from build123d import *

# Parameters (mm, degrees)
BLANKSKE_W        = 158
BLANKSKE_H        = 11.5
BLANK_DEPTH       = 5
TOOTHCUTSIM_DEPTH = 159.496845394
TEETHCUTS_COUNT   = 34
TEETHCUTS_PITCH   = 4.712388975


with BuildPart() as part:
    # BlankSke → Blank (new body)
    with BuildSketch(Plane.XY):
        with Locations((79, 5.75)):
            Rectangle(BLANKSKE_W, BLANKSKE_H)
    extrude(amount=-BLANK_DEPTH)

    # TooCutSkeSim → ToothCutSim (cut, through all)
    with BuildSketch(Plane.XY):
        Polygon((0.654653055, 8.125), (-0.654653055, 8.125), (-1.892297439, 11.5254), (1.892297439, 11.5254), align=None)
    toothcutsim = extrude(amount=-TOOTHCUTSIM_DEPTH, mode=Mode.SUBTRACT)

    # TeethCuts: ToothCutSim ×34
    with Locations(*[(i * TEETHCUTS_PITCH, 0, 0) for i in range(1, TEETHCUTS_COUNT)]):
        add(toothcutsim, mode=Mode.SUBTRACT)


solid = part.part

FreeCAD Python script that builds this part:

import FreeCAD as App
import Part
import Sketcher
from FreeCAD import Vector
Q = App.Units.Quantity

doc = App.newDocument("Part")
body = doc.addObject("PartDesign::Body", "Body")

# Sketch on XY plane
sketch1 = body.newObject("Sketcher::SketchObject", "Sketch")
sketch1.AttachmentSupport = (doc.getObject("XY_Plane"), [""])
sketch1.MapMode = "FlatFace"
sketch1.addGeometry(Part.LineSegment(Vector(0, 11.5, 0), Vector(0, 0, 0)), False)
sketch1.addGeometry(Part.LineSegment(Vector(0, 0, 0), Vector(158, 0, 0)), False)
sketch1.addGeometry(Part.LineSegment(Vector(158, 0, 0), Vector(158, 11.5, 0)), False)
sketch1.addGeometry(Part.LineSegment(Vector(158, 11.5, 0), Vector(0, 11.5, 0)), False)
sketch1.addConstraint(Sketcher.Constraint("Coincident", 0, 2, 1, 1))
sketch1.addConstraint(Sketcher.Constraint("Coincident", 1, 2, 2, 1))
sketch1.addConstraint(Sketcher.Constraint("Coincident", 2, 2, 3, 1))
sketch1.addConstraint(Sketcher.Constraint("Coincident", 3, 2, 0, 1))
sketch1.addConstraint(Sketcher.Constraint("Vertical", 0))
sketch1.addConstraint(Sketcher.Constraint("Horizontal", 1))
sketch1.addConstraint(Sketcher.Constraint("Vertical", 2))
sketch1.addConstraint(Sketcher.Constraint("Horizontal", 3))
sketch1.addConstraint(Sketcher.Constraint("Coincident", 0, 2, -1, 1))
sketch1.addConstraint(Sketcher.Constraint("DistanceX", 1, 1, 1, 2, 158.0))
sketch1.addConstraint(Sketcher.Constraint("DistanceY", 0, 2, 0, 1, 11.5))
pad1 = body.newObject("PartDesign::Pad", "Pad")
pad1.Profile = sketch1
pad1.Length = 5
pad1.Reversed = True

# Sketch on XY plane
sketch2 = body.newObject("Sketcher::SketchObject", "Sketch001")
sketch2.AttachmentSupport = (doc.getObject("XY_Plane"), [""])
sketch2.MapMode = "FlatFace"
sketch2.addGeometry(Part.LineSegment(Vector(-0.654653, 8.125, 0), Vector(0.654653, 8.125, 0)), False)
sketch2.addGeometry(Part.LineSegment(Vector(0.654653, 8.125, 0), Vector(1.892297, 11.5254, 0)), False)
sketch2.addGeometry(Part.LineSegment(Vector(1.892297, 11.5254, 0), Vector(-1.892297, 11.5254, 0)), False)
sketch2.addGeometry(Part.LineSegment(Vector(-1.892297, 11.5254, 0), Vector(-0.654653, 8.125, 0)), False)
sketch2.addConstraint(Sketcher.Constraint("Coincident", 0, 2, 1, 1))
sketch2.addConstraint(Sketcher.Constraint("Coincident", 1, 2, 2, 1))
sketch2.addConstraint(Sketcher.Constraint("Coincident", 2, 2, 3, 1))
sketch2.addConstraint(Sketcher.Constraint("Coincident", 3, 2, 0, 1))
sketch2.addConstraint(Sketcher.Constraint("Horizontal", 0))
sketch2.addConstraint(Sketcher.Constraint("Horizontal", 2))
sketch2.addConstraint(Sketcher.Constraint("Equal", 1, 3))
sketch2.addConstraint(Sketcher.Constraint("Angle", 1, Q("70 deg")))
sketch2.addConstraint(Sketcher.Constraint("DistanceY", -1, 1, 0, 2, 8.125))
sketch2.addConstraint(Sketcher.Constraint("DistanceY", -1, 1, 1, 2, 11.5254))
sketch2.addConstraint(Sketcher.Constraint("DistanceX", 0, 1, 0, 2, 1.309306))
sketch2.addConstraint(Sketcher.Constraint("DistanceX", -1, 1, 0, 2, 0.654653))
pocket1 = body.newObject("PartDesign::Pocket", "Pocket")
pocket1.Profile = sketch2
pocket1.Type = "ThroughAll"
doc.recompute()

linearpattern = body.newObject("PartDesign::LinearPattern", "LinearPattern")
linearpattern.Originals = [pocket1]
linearpattern.Direction = (doc.getObject("X_Axis"), [""])
linearpattern.Mode = "offset"
linearpattern.Offset = 4.712389
linearpattern.Occurrences = 34
body.Tip = linearpattern

doc.recompute()
